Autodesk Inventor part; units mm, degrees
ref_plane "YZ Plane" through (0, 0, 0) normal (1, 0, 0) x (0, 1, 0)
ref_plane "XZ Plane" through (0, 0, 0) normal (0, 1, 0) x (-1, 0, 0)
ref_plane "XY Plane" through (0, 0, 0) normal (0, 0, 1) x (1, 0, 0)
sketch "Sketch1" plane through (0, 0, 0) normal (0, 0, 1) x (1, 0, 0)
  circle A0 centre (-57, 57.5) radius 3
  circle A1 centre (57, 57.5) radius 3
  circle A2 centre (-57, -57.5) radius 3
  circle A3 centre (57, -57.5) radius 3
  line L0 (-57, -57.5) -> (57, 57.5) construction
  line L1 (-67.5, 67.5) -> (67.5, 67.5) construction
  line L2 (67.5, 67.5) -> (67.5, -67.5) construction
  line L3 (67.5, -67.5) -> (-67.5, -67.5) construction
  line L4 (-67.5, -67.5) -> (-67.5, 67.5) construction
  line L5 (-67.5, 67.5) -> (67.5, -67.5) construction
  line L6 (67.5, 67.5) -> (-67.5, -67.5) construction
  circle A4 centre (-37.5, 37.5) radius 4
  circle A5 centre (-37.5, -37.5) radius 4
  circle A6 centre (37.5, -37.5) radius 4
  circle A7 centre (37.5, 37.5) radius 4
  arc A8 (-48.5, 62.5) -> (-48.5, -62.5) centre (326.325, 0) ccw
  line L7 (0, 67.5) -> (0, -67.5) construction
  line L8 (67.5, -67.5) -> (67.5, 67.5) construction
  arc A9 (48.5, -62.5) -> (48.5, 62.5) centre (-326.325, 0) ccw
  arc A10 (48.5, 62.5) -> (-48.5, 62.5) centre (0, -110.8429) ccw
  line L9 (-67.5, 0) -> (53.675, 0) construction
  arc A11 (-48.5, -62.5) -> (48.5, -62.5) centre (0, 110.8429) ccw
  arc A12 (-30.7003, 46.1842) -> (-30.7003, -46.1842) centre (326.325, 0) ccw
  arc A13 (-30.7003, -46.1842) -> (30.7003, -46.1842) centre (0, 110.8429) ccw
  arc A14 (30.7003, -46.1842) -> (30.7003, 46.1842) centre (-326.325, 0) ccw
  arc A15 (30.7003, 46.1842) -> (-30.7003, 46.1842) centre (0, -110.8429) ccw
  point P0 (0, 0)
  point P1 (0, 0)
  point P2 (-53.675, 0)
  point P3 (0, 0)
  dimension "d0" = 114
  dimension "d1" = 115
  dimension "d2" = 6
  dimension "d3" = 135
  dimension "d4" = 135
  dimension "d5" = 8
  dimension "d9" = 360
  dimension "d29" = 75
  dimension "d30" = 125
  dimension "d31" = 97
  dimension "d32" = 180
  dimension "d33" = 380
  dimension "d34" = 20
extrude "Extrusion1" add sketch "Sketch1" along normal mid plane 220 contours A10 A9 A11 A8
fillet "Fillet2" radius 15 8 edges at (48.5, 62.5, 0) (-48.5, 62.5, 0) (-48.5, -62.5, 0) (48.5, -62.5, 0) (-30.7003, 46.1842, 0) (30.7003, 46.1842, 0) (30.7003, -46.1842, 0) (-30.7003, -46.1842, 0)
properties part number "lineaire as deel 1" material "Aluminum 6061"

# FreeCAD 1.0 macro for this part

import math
import FreeCAD as App
import Part
import Sketcher

V = App.Vector
Q = App.Units.Quantity


def edges_at(feature, points):
    """Names of the edges that pass closest to the given points."""
    edges = feature.Shape.Edges
    near = lambda p: min(range(len(edges)), key=lambda i: edges[i].distToShape(Part.Vertex(*p))[0])
    return sorted({f"Edge{near(p) + 1}" for p in points})

doc = App.newDocument("Part")
body = doc.addObject("PartDesign::Body", "Body")

# Sketch on XY plane
sketch1 = body.newObject("Sketcher::SketchObject", "Sketch")
sketch1.AttachmentSupport = (doc.getObject("XY_Plane"), [""])
sketch1.MapMode = "FlatFace"
sketch1.addGeometry(Part.ArcOfCircle(Part.Circle(V(0, -110.8, 0), V(0, 0, 1), 180), math.radians(74), math.radians(106)), False)
sketch1.addGeometry(Part.ArcOfCircle(Part.Circle(V(326.3, 0, 0), V(0, 0, 1), 380), math.radians(170.53), math.radians(189.47)), False)
sketch1.addGeometry(Part.ArcOfCircle(Part.Circle(V(0, 110.8, 0), V(0, 0, 1), 180), math.radians(-106), math.radians(-74)), False)
sketch1.addGeometry(Part.ArcOfCircle(Part.Circle(V(-326.3, 0, 0), V(0, 0, 1), 380), math.radians(-9.47), math.radians(9.47)), False)
sketch1.addGeometry(Part.Circle(V(-37.5, -37.5, 0), V(0, 0, 1), 4), False)
sketch1.addGeometry(Part.Circle(V(37.5, -37.5, 0), V(0, 0, 1), 4), False)
sketch1.addGeometry(Part.Circle(V(-37.5, 37.5, 0), V(0, 0, 1), 4), False)
sketch1.addGeometry(Part.ArcOfCircle(Part.Circle(V(326.3, 0, 0), V(0, 0, 1), 360), math.radians(172.63), math.radians(187.37)), False)
sketch1.addGeometry(Part.ArcOfCircle(Part.Circle(V(0, -110.8, 0), V(0, 0, 1), 160), math.radians(79), math.radians(101)), False)
sketch1.addGeometry(Part.ArcOfCircle(Part.Circle(V(-326.3, 0, 0), V(0, 0, 1), 360), math.radians(-7.37), math.radians(7.37)), False)
sketch1.addGeometry(Part.ArcOfCircle(Part.Circle(V(0, 110.8, 0), V(0, 0, 1), 160), math.radians(-101), math.radians(-79)), False)
sketch1.addGeometry(Part.Circle(V(37.5, 37.5, 0), V(0, 0, 1), 4), False)
sketch1.addConstraint(Sketcher.Constraint("Coincident", 0, 2, 1, 1))
sketch1.addConstraint(Sketcher.Constraint("Coincident", 1, 2, 2, 1))
sketch1.addConstraint(Sketcher.Constraint("Coincident", 2, 2, 3, 1))
sketch1.addConstraint(Sketcher.Constraint("Coincident", 3, 2, 0, 1))
sketch1.addConstraint(Sketcher.Constraint("Coincident", 7, 1, 8, 2))
sketch1.addConstraint(Sketcher.Constraint("Coincident", 8, 1, 9, 2))
sketch1.addConstraint(Sketcher.Constraint("Coincident", 9, 1, 10, 2))
sketch1.addConstraint(Sketcher.Constraint("Coincident", 10, 1, 7, 2))
sketch1.addConstraint(Sketcher.Constraint("Coincident", 7, 3, 1, 3))
sketch1.addConstraint(Sketcher.Constraint("Coincident", 8, 3, 0, 3))
sketch1.addConstraint(Sketcher.Constraint("Coincident", 9, 3, 3, 3))
sketch1.addConstraint(Sketcher.Constraint("Coincident", 10, 3, 2, 3))
sketch1.addConstraint(Sketcher.Constraint("Equal", 0, 2))
sketch1.addConstraint(Sketcher.Constraint("Equal", 1, 3))
sketch1.addConstraint(Sketcher.Constraint("Equal", 4, 5))
sketch1.addConstraint(Sketcher.Constraint("Equal", 5, 6))
sketch1.addConstraint(Sketcher.Constraint("Equal", 7, 9))
sketch1.addConstraint(Sketcher.Constraint("Equal", 8, 10))
sketch1.addConstraint(Sketcher.Constraint("Equal", 6, 11))
sketch1.addConstraint(Sketcher.Constraint("Symmetric", 0, 3, 2, 3, -1, 1))
sketch1.addConstraint(Sketcher.Constraint("Symmetric", 1, 3, 3, 3, -1, 1))
sketch1.addConstraint(Sketcher.Constraint("Symmetric", 5, 3, 6, 3, -1, 1))
sketch1.addConstraint(Sketcher.Constraint("Symmetric", 4, 3, 11, 3, -1, 1))
sketch1.addConstraint(Sketcher.Constraint("Symmetric", 4, 3, 5, 3, -2))
sketch1.addConstraint(Sketcher.Constraint("PointOnObject", 0, 3, -2))
sketch1.addConstraint(Sketcher.Constraint("PointOnObject", 1, 3, -1))
sketch1.addConstraint(Sketcher.Constraint("Diameter", 4, Q("8 mm")))
sketch1.addConstraint(Sketcher.Constraint("Radius", 0, Q("180 mm")))
sketch1.addConstraint(Sketcher.Constraint("Radius", 1, Q("380 mm")))
sketch1.addConstraint(Sketcher.Constraint("Radius", 7, Q("360 mm")))
sketch1.addConstraint(Sketcher.Constraint("Radius", 8, Q("160 mm")))
sketch1.addConstraint(Sketcher.Constraint("DistanceX", 4, 3, 5, 3, Q("75 mm")))
sketch1.addConstraint(Sketcher.Constraint("DistanceY", 4, 3, 6, 3, Q("75 mm")))
sketch1.addConstraint(Sketcher.Constraint("DistanceX", 1, 2, 2, 2, Q("97 mm")))
sketch1.addConstraint(Sketcher.Constraint("DistanceY", 6, 3, 0, 2, Q("25 mm")))
pad1 = body.newObject("PartDesign::Pad", "Pad")
pad1.Profile = sketch1
pad1.Length = 220
pad1.Midplane = True
doc.recompute()

fillet = body.newObject("PartDesign::Fillet", "Fillet")
fillet.Base = (pad1, edges_at(pad1, [
    (48.5, 62.5, 0),
    (-48.5, 62.5, 0),
    (-48.5, -62.5, 0),
    (48.5, -62.5, 0),
    (-30.7, 46.184, 0),
    (30.7, 46.184, 0),
    (30.7, -46.184, 0),
    (-30.7, -46.184, 0),
]))
fillet.Radius = 15

doc.recompute()
